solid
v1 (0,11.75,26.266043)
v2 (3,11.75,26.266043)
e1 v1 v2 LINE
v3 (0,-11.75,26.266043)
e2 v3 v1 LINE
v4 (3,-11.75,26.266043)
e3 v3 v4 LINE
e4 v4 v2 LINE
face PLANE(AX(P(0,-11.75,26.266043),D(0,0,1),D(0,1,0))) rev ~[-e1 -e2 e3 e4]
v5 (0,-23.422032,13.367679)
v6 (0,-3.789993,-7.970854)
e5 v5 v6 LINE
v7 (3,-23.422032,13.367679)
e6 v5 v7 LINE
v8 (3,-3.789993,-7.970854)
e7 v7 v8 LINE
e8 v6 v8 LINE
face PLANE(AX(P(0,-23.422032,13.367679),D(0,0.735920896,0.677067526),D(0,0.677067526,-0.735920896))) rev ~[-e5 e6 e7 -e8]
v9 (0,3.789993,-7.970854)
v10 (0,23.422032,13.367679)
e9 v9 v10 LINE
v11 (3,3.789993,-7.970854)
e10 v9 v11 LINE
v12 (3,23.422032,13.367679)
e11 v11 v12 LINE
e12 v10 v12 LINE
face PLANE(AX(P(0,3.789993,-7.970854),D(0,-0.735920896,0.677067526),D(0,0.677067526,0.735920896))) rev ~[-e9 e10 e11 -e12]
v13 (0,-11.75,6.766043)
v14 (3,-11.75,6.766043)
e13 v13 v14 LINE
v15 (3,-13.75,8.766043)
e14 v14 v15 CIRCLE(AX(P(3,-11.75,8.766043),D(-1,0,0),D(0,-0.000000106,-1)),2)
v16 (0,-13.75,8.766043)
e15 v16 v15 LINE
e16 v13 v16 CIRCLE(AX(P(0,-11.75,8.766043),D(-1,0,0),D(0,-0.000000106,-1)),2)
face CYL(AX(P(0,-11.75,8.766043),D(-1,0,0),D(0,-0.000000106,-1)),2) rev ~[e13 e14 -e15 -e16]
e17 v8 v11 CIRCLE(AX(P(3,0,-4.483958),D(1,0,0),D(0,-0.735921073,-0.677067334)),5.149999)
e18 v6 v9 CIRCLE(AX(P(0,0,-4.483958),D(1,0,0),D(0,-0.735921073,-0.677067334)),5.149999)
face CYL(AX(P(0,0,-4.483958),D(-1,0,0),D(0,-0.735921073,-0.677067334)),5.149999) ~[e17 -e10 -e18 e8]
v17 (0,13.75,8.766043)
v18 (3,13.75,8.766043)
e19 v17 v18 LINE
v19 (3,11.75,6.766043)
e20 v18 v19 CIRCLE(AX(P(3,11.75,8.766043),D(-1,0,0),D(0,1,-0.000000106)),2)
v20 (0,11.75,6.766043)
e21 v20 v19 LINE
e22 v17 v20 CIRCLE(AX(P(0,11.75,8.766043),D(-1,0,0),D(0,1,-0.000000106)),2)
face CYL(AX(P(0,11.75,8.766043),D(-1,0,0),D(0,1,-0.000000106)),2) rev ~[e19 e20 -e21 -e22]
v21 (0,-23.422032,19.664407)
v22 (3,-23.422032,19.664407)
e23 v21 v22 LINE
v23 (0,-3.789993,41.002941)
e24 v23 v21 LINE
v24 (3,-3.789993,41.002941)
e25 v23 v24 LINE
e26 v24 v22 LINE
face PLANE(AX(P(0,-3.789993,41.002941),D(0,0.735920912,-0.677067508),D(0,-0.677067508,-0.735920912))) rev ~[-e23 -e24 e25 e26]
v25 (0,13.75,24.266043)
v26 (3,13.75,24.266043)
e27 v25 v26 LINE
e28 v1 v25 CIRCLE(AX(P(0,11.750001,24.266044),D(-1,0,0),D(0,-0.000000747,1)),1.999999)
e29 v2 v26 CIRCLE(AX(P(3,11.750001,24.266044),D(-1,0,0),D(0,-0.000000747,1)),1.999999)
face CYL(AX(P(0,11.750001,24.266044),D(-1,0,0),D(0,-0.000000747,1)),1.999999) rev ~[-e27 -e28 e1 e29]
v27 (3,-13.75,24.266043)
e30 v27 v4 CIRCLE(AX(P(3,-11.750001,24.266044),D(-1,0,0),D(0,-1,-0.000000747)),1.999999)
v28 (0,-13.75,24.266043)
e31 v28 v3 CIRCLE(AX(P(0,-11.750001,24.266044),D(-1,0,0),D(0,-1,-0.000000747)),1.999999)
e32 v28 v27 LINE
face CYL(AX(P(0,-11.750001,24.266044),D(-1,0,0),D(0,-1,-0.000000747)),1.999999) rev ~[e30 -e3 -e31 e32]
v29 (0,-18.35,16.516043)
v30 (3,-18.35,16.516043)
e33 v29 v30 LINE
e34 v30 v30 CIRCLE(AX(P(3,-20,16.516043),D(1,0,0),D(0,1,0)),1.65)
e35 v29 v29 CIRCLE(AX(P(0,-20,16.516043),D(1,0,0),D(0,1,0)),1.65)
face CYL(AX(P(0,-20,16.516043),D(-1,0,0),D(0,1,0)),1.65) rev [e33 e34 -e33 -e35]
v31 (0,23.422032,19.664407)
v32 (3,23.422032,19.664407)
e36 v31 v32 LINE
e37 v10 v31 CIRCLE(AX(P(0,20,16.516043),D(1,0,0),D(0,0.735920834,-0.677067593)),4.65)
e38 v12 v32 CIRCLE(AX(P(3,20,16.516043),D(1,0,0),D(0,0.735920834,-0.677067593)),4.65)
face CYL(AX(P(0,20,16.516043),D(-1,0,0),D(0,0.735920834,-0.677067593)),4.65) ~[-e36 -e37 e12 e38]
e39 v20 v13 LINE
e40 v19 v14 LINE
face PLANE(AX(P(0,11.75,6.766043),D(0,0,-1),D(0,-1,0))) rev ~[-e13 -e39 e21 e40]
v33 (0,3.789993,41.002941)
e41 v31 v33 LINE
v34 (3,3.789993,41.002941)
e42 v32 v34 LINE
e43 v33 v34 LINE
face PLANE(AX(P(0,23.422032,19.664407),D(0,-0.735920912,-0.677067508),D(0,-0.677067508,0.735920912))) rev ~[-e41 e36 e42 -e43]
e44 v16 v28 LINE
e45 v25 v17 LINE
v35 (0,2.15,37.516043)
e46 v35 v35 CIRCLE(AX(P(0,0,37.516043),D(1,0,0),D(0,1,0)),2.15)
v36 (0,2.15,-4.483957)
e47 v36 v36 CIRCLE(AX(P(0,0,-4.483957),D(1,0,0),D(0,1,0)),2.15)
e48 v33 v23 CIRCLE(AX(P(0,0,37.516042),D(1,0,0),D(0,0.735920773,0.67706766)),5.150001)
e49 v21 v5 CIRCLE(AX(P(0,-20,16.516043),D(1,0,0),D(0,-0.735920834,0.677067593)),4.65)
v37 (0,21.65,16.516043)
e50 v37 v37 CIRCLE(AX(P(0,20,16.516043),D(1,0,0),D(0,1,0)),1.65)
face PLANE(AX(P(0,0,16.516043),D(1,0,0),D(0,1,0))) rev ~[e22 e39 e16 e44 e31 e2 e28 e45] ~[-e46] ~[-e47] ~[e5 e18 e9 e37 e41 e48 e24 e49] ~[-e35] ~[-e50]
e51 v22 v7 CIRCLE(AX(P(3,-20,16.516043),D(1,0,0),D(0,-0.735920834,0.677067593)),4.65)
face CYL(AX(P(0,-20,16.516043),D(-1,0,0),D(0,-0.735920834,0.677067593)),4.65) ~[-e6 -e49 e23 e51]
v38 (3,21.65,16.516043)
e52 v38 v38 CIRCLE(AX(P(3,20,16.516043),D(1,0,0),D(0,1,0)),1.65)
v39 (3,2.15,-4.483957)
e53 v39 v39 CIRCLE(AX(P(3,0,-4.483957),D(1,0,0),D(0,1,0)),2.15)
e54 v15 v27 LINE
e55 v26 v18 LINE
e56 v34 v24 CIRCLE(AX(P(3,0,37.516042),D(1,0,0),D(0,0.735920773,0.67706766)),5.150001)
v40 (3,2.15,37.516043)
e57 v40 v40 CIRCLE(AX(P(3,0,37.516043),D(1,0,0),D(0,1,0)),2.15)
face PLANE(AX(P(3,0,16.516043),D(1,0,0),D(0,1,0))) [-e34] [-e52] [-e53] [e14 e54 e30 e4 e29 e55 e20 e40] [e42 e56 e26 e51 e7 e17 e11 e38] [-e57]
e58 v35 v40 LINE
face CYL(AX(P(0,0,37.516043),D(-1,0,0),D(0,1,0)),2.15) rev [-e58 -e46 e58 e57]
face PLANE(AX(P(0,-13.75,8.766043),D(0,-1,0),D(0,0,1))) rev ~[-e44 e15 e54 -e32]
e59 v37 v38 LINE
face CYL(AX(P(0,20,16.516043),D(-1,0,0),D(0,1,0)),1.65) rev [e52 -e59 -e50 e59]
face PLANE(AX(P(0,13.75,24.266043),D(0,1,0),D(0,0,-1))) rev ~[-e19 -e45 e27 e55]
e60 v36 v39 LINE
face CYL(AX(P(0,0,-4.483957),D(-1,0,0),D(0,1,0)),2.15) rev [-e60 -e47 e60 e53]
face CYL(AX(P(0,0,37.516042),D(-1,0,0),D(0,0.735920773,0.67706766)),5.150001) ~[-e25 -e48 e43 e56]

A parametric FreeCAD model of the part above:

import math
import FreeCAD as App
import Part
import Sketcher

doc = App.newDocument("Part")
body = doc.addObject("PartDesign::Body", "Body")

sketch1 = body.newObject("Sketcher::SketchObject", "Sketch")
sketch1.AttachmentSupport = (doc.getObject("YZ_Plane"), [""])
sketch1.MapMode = "FlatFace"
sketch1.addGeometry(Part.LineSegment(App.Vector(23.4, 19.7, 0), App.Vector(3.8, 41, 0)), False)
sketch1.addGeometry(Part.ArcOfCircle(Part.Circle(App.Vector(0, 37.5, 0), App.Vector(0, 0, 1), 5.2), math.radians(43), math.radians(137)), False)
sketch1.addGeometry(Part.LineSegment(App.Vector(-3.8, 41, 0), App.Vector(-23.4, 19.7, 0)), False)
sketch1.addGeometry(Part.ArcOfCircle(Part.Circle(App.Vector(-20, 16.5, 0), App.Vector(0, 0, 1), 4.6), math.radians(137), math.radians(223)), False)
sketch1.addGeometry(Part.LineSegment(App.Vector(-23.4, 13.4, 0), App.Vector(-3.8, -8, 0)), False)
sketch1.addGeometry(Part.ArcOfCircle(Part.Circle(App.Vector(0, -4.5, 0), App.Vector(0, 0, 1), 5.1), math.radians(-137), math.radians(-43)), False)
sketch1.addGeometry(Part.LineSegment(App.Vector(3.8, -8, 0), App.Vector(23.4, 13.4, 0)), False)
sketch1.addGeometry(Part.ArcOfCircle(Part.Circle(App.Vector(20, 16.5, 0), App.Vector(0, 0, 1), 4.6), math.radians(-43), math.radians(43)), False)
sketch1.addGeometry(Part.Circle(App.Vector(0, -4.5, 0), App.Vector(0, 0, 1), 2.1), False)
sketch1.addGeometry(Part.Circle(App.Vector(-20, 16.5, 0), App.Vector(0, 0, 1), 1.6), False)
sketch1.addGeometry(Part.LineSegment(App.Vector(-13.8, 8.8, 0), App.Vector(-13.8, 24.3, 0)), False)
sketch1.addGeometry(Part.ArcOfCircle(Part.Circle(App.Vector(-11.8, 24.3, 0), App.Vector(0, 0, 1), 2), math.radians(90), math.radians(180)), False)
sketch1.addGeometry(Part.LineSegment(App.Vector(-11.8, 26.3, 0), App.Vector(11.8, 26.3, 0)), False)
sketch1.addGeometry(Part.ArcOfCircle(Part.Circle(App.Vector(11.8, 24.3, 0), App.Vector(0, 0, 1), 2), math.radians(0), math.radians(90)), False)
sketch1.addGeometry(Part.LineSegment(App.Vector(13.8, 24.3, 0), App.Vector(13.8, 8.8, 0)), False)
sketch1.addGeometry(Part.ArcOfCircle(Part.Circle(App.Vector(11.7, 8.8, 0), App.Vector(0, 0, 1), 2), math.radians(-90), math.radians(0)), False)
sketch1.addGeometry(Part.LineSegment(App.Vector(11.8, 6.8, 0), App.Vector(-11.8, 6.8, 0)), False)
sketch1.addGeometry(Part.ArcOfCircle(Part.Circle(App.Vector(-11.7, 8.8, 0), App.Vector(0, 0, 1), 2), math.radians(-180), math.radians(-90)), False)
sketch1.addGeometry(Part.Circle(App.Vector(20, 16.5, 0), App.Vector(0, 0, 1), 1.6), False)
sketch1.addGeometry(Part.Circle(App.Vector(0, 37.5, 0), App.Vector(0, 0, 1), 2.1), False)
sketch1.addConstraint(Sketcher.Constraint("Tangent", 0, 2, 1, 1))
sketch1.addConstraint(Sketcher.Constraint("Tangent", 1, 2, 2, 1))
sketch1.addConstraint(Sketcher.Constraint("Tangent", 2, 2, 3, 1))
sketch1.addConstraint(Sketcher.Constraint("Tangent", 3, 2, 4, 1))
sketch1.addConstraint(Sketcher.Constraint("Tangent", 4, 2, 5, 1))
sketch1.addConstraint(Sketcher.Constraint("Tangent", 5, 2, 6, 1))
sketch1.addConstraint(Sketcher.Constraint("Tangent", 6, 2, 7, 1))
sketch1.addConstraint(Sketcher.Constraint("Tangent", 7, 2, 0, 1))
sketch1.addConstraint(Sketcher.Constraint("Tangent", 10, 2, 11, 2))
sketch1.addConstraint(Sketcher.Constraint("Tangent", 11, 1, 12, 1))
sketch1.addConstraint(Sketcher.Constraint("Tangent", 12, 2, 13, 2))
sketch1.addConstraint(Sketcher.Constraint("Tangent", 13, 1, 14, 1))
sketch1.addConstraint(Sketcher.Constraint("Tangent", 14, 2, 15, 2))
sketch1.addConstraint(Sketcher.Constraint("Tangent", 15, 1, 16, 1))
sketch1.addConstraint(Sketcher.Constraint("Tangent", 16, 2, 17, 2))
sketch1.addConstraint(Sketcher.Constraint("Tangent", 17, 1, 10, 1))
sketch1.addConstraint(Sketcher.Constraint("Vertical", 10))
sketch1.addConstraint(Sketcher.Constraint("Horizontal", 12))
sketch1.addConstraint(Sketcher.Constraint("Vertical", 14))
sketch1.addConstraint(Sketcher.Constraint("Horizontal", 16))
sketch1.addConstraint(Sketcher.Constraint("Coincident", 8, 3, 5, 3))
sketch1.addConstraint(Sketcher.Constraint("Coincident", 9, 3, 3, 3))
sketch1.addConstraint(Sketcher.Constraint("Coincident", 18, 3, 7, 3))
sketch1.addConstraint(Sketcher.Constraint("Coincident", 19, 3, 1, 3))
sketch1.addConstraint(Sketcher.Constraint("Equal", 3, 7))
sketch1.addConstraint(Sketcher.Constraint("Equal", 11, 13))
sketch1.addConstraint(Sketcher.Constraint("Equal", 13, 15))
sketch1.addConstraint(Sketcher.Constraint("Equal", 15, 17))
sketch1.addConstraint(Sketcher.Constraint("Equal", 9, 18))
sketch1.addConstraint(Sketcher.Constraint("Equal", 8, 19))
sketch1.addConstraint(Sketcher.Constraint("Symmetric", 3, 3, 7, 3, -2))
sketch1.addConstraint(Sketcher.Constraint("PointOnObject", 1, 3, -2))
sketch1.addConstraint(Sketcher.Constraint("PointOnObject", 5, 3, -2))
sketch1.addConstraint(Sketcher.Constraint("Parallel", 0, 4))
sketch1.addConstraint(Sketcher.Constraint("Vertical", 1, 2, 4, 2))
sketch1.addConstraint(Sketcher.Constraint("Radius", 11, 1.999999))
sketch1.addConstraint(Sketcher.Constraint("Diameter", 8, 4.3))
sketch1.addConstraint(Sketcher.Constraint("Diameter", 9, 3.3))
sketch1.addConstraint(Sketcher.Constraint("Radius", 1, 5.150001))
sketch1.addConstraint(Sketcher.Constraint("Radius", 3, 4.65))
sketch1.addConstraint(Sketcher.Constraint("DistanceX", 12, 1, 12, 2, 23.5))
sketch1.addConstraint(Sketcher.Constraint("DistanceY", 10, 1, 10, 2, 15.5))
sketch1.addConstraint(Sketcher.Constraint("DistanceX", 3, 3, -1, 1, 20.0))
sketch1.addConstraint(Sketcher.Constraint("DistanceY", 3, 3, 1, 3, 20.999999))
sketch1.addConstraint(Sketcher.Constraint("DistanceX", 11, 3, -1, 1, 11.750001))
sketch1.addConstraint(Sketcher.Constraint("DistanceY", 9, 3, 11, 3, 7.750001))
sketch1.addConstraint(Sketcher.Constraint("DistanceY", -1, 1, 1, 3, 37.516042))
pad1 = body.newObject("PartDesign::Pad", "Pad")
pad1.Profile = sketch1
pad1.Length = 3

doc.recompute()
